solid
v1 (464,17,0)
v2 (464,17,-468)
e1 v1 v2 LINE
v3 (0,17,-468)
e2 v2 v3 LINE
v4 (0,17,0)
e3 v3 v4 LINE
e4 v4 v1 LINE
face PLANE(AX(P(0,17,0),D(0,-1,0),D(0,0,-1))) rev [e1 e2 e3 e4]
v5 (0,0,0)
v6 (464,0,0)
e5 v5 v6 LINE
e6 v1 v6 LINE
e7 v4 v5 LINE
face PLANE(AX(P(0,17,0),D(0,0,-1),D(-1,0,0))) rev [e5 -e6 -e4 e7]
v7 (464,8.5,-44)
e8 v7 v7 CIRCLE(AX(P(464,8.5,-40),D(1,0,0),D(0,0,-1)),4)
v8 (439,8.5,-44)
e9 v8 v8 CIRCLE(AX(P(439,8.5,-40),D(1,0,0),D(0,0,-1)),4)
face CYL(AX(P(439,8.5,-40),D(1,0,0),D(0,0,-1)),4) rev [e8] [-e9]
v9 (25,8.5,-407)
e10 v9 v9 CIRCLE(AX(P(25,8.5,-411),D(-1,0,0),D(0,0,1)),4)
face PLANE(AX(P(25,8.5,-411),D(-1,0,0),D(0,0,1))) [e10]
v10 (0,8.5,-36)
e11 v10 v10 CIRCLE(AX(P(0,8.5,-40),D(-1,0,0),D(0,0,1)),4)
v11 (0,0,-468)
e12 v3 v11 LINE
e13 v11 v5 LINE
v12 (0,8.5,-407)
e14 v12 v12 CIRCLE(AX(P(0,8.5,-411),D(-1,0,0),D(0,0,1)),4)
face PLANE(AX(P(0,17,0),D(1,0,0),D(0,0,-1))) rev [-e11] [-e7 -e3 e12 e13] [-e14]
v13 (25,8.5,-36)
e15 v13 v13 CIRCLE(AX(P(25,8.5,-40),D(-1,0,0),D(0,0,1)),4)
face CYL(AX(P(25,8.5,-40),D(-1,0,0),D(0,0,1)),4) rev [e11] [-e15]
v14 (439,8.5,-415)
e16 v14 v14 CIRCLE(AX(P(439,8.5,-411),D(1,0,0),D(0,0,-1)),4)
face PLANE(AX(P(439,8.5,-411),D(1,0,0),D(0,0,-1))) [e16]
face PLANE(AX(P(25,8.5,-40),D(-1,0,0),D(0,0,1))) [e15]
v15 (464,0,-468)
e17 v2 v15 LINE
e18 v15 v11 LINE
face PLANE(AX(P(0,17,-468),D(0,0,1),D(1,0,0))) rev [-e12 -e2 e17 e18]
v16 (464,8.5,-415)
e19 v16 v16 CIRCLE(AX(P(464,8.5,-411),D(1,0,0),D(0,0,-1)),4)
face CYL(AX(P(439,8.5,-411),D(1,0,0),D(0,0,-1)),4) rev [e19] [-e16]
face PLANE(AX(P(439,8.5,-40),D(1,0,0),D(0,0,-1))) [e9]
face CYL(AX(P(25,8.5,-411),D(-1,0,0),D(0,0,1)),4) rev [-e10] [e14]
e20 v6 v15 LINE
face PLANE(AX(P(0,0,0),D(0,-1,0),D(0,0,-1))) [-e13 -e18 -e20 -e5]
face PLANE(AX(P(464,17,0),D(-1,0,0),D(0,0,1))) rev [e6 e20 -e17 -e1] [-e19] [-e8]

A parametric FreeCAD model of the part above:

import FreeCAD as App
import Part
import Sketcher
from FreeCAD import Vector
Q = App.Units.Quantity


def add_polygon(sketch, points):
    """Adds a closed chain of lines whose ends are joined by coincident constraints."""
    first, n = sketch.GeometryCount, len(points)
    for a, b in zip(points, points[1:] + points[:1]):
        sketch.addGeometry(Part.LineSegment(App.Vector(*a, 0), App.Vector(*b, 0)), False)
    for i in range(n):
        sketch.addConstraint(Sketcher.Constraint("Coincident", first + i, 2, first + (i + 1) % n, 1))

doc = App.newDocument("Part")
body = doc.addObject("PartDesign::Body", "Body")

sketch1 = doc.addObject("Sketcher::SketchObject", "Sketch")
body.addObject(sketch1)
sketch1.AttachmentSupport = (doc.XZ_Plane, [""])
sketch1.MapMode = "FlatFace"
add_polygon(sketch1, [(0, -468), (0, 0), (464, 0), (464, -468)])
sketch1.addConstraint([
    Sketcher.Constraint("Vertical", 0),
    Sketcher.Constraint("Horizontal", 1),
    Sketcher.Constraint("Vertical", 2),
    Sketcher.Constraint("Horizontal", 3),
    Sketcher.Constraint("Coincident", 0, 2, -1, 1),
    Sketcher.Constraint("DistanceX", 1, 1, 1, 2, Q("464 mm")),
    Sketcher.Constraint("DistanceY", 0, 1, 0, 2, Q("468 mm")),
])
pad1 = doc.addObject("PartDesign::Pad", "Pad")
body.addObject(pad1)
pad1.Profile = sketch1
pad1.Length = 17
pad1.Reversed = True

sketch2 = doc.addObject("Sketcher::SketchObject", "Sketch001")
body.addObject(sketch2)
sketch2.AttachmentSupport = (doc.YZ_Plane, [""])
sketch2.MapMode = "FlatFace"
sketch2.AttachmentOffset = App.Placement(Vector(0, 0, 464), App.Rotation())
sketch2.addGeometry([
    Part.Circle(Vector(8.5, -40, 0), Vector(0, 0, 1), 4),
    Part.Circle(Vector(8.5, -411, 0), Vector(0, 0, 1), 4),
], False)
sketch2.addConstraint([
    Sketcher.Constraint("Equal", 0, 1),
    Sketcher.Constraint("Vertical", 0, 3, 1, 3),
    Sketcher.Constraint("Diameter", 0, Q("8 mm")),
    Sketcher.Constraint("DistanceY", 0, 3, -1, 1, Q("40 mm")),
    Sketcher.Constraint("DistanceY", 1, 3, -1, 1, Q("411 mm")),
    Sketcher.Constraint("DistanceX", -1, 1, 0, 3, Q("8.5 mm")),
])
pocket1 = doc.addObject("PartDesign::Pocket", "Pocket")
body.addObject(pocket1)
pocket1.Profile = sketch2
pocket1.Length = 25

sketch3 = doc.addObject("Sketcher::SketchObject", "Sketch002")
body.addObject(sketch3)
sketch3.AttachmentSupport = (doc.YZ_Plane, [""])
sketch3.MapMode = "FlatFace"
sketch3.AttachmentOffset = App.Placement(Vector(0, 0, 25), App.Rotation())
sketch3.addGeometry([
    Part.Circle(Vector(8.5, -411, 0), Vector(0, 0, 1), 4),
    Part.Circle(Vector(8.5, -40, 0), Vector(0, 0, 1), 4),
], False)
sketch3.addConstraint([
    Sketcher.Constraint("Equal", 0, 1),
    Sketcher.Constraint("Vertical", 0, 3, 1, 3),
    Sketcher.Constraint("Diameter", 0, Q("8 mm")),
    Sketcher.Constraint("DistanceY", 0, 3, -1, 1, Q("411 mm")),
    Sketcher.Constraint("DistanceY", 1, 3, -1, 1, Q("40 mm")),
    Sketcher.Constraint("DistanceX", -1, 1, 0, 3, Q("8.5 mm")),
])
pocket2 = doc.addObject("PartDesign::Pocket", "Pocket001")
body.addObject(pocket2)
pocket2.Profile = sketch3
pocket2.Length = 25

doc.recompute()
